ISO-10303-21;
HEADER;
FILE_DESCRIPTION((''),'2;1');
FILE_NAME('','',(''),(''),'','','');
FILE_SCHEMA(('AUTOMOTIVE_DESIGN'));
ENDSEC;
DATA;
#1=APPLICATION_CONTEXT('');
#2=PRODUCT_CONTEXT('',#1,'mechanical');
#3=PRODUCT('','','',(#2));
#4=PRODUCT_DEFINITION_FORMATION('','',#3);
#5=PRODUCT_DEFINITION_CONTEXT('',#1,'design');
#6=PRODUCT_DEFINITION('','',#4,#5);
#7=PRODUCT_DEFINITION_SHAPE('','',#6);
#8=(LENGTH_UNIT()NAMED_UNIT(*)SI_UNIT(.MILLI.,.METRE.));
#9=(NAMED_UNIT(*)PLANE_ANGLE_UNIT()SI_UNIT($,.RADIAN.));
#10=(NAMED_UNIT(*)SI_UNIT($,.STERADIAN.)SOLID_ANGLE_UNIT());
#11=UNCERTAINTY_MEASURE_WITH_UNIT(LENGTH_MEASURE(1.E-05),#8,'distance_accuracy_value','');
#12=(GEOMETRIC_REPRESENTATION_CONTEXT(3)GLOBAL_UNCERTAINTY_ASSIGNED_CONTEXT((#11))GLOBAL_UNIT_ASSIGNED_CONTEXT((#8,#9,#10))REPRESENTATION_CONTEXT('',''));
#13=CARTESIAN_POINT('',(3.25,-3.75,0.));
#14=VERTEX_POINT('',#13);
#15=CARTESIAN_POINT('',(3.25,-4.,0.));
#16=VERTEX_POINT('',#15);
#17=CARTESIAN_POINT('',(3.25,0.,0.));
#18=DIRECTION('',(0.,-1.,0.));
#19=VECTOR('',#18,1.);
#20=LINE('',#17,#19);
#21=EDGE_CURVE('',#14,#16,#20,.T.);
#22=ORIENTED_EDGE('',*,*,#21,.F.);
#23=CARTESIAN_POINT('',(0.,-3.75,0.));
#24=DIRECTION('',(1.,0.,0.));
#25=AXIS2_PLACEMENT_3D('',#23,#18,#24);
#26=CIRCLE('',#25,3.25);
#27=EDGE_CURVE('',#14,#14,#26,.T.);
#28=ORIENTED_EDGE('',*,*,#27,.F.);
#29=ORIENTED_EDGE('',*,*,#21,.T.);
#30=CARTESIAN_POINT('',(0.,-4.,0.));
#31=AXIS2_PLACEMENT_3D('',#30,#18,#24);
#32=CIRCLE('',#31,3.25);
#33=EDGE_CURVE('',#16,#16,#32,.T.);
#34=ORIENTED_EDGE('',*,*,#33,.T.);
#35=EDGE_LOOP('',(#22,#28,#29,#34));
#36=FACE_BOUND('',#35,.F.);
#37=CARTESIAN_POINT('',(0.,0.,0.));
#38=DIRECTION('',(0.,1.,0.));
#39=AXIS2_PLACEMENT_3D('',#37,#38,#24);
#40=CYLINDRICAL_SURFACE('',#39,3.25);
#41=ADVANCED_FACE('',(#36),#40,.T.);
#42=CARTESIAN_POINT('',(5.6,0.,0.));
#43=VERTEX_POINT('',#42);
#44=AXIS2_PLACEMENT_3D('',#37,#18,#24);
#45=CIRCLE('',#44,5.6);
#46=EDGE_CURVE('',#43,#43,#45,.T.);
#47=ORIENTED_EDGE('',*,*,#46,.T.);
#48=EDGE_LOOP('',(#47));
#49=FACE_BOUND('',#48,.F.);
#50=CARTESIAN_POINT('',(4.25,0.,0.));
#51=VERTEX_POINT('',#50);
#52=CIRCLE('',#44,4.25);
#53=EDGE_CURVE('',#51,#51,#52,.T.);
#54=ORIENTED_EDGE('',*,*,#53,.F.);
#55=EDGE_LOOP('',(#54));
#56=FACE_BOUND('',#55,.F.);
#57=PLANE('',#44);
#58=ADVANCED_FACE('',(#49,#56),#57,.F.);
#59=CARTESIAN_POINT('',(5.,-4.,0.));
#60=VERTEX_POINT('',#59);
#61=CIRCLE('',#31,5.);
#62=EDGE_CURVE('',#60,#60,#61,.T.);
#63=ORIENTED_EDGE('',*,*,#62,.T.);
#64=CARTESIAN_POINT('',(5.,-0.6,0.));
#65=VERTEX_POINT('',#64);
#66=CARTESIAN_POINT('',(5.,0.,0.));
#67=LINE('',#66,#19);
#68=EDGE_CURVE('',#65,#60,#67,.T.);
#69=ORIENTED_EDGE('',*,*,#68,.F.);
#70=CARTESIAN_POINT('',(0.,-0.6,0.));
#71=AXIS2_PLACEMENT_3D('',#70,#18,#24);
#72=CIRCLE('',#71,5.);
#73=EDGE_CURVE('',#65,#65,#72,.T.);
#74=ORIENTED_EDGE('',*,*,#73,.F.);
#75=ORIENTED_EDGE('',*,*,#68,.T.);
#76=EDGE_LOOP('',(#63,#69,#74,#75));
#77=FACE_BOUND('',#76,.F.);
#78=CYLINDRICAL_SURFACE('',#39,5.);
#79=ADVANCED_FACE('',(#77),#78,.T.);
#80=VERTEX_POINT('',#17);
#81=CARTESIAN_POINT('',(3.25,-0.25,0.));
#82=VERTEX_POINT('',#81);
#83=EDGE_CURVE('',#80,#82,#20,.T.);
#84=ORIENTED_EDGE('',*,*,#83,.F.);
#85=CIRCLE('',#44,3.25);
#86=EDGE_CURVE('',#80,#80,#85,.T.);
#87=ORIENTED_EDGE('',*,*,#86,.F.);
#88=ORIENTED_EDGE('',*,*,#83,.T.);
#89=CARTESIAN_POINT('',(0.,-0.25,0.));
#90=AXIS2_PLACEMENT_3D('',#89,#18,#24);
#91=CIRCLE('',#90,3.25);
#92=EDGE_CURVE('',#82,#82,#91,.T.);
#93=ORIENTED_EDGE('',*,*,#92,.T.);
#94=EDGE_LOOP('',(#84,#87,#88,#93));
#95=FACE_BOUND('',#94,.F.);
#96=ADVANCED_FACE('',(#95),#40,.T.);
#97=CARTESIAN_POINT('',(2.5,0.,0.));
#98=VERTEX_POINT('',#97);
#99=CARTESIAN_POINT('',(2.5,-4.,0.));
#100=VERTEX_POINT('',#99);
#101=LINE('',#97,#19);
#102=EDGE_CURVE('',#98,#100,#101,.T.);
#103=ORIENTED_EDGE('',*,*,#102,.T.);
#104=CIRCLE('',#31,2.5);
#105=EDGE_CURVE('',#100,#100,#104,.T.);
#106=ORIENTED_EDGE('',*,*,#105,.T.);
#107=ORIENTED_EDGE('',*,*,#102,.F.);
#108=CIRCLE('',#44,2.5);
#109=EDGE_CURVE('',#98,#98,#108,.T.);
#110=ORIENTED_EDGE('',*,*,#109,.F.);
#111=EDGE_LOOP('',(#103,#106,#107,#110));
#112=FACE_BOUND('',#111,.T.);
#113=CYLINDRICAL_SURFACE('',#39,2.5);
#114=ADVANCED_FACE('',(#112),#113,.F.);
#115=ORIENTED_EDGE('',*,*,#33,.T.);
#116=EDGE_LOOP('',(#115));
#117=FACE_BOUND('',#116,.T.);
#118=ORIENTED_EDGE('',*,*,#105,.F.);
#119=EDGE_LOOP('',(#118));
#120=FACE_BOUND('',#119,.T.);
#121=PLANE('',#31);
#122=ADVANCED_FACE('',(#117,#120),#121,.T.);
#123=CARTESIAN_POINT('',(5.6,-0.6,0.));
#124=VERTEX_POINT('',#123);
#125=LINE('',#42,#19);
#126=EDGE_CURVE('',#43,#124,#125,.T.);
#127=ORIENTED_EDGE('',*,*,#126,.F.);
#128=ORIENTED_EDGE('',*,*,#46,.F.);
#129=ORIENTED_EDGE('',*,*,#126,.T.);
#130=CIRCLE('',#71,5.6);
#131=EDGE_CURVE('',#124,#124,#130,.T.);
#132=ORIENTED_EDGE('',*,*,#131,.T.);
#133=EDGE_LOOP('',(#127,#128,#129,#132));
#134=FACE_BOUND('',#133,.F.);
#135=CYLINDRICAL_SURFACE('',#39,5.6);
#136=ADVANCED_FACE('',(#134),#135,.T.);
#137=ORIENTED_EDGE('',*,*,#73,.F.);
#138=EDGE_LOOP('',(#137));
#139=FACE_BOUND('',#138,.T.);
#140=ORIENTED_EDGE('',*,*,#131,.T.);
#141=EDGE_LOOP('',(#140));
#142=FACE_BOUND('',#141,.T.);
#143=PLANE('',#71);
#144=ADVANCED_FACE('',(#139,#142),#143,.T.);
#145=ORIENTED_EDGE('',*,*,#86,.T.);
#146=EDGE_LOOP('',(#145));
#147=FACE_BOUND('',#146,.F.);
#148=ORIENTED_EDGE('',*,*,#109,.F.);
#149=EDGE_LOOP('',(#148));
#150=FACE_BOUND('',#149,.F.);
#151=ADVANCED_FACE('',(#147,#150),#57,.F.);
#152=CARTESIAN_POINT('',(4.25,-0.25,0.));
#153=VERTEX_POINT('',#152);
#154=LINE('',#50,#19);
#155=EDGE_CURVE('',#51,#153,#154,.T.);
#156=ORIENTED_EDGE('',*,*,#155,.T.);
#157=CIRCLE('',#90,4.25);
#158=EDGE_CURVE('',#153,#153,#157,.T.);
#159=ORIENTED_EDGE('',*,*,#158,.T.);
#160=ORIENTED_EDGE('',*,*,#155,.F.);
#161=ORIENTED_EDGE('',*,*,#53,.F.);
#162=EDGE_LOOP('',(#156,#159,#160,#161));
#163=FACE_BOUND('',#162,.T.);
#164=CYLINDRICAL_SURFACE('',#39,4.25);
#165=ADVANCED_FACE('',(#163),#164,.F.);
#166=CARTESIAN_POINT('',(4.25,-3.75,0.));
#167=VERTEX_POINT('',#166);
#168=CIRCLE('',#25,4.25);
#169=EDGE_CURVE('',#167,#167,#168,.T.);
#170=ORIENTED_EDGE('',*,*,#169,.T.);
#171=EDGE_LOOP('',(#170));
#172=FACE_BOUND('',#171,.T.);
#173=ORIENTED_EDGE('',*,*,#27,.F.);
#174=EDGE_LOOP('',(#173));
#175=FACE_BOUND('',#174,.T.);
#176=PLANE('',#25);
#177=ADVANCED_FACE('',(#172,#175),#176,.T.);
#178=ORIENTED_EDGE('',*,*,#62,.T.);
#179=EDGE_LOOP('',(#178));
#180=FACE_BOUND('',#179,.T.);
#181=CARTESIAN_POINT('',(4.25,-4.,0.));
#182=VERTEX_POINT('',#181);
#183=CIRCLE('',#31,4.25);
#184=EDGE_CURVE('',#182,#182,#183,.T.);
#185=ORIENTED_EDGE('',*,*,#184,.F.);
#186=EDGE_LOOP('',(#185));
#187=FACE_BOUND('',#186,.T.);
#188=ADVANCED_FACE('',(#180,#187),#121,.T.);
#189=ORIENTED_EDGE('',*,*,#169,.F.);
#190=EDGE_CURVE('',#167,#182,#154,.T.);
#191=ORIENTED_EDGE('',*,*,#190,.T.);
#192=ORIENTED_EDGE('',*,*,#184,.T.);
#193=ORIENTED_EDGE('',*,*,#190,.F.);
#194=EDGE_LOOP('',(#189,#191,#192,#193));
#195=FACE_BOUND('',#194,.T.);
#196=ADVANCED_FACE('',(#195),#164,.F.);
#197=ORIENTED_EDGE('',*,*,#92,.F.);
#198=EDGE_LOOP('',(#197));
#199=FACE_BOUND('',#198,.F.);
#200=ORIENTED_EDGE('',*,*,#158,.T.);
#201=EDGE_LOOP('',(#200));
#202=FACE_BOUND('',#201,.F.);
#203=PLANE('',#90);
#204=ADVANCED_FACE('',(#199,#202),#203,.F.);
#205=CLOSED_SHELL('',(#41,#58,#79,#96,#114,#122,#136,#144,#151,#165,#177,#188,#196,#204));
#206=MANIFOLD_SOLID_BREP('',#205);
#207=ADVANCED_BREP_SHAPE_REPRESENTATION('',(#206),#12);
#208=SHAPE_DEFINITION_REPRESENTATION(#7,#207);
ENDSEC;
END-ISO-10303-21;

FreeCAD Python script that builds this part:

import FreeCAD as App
import Part
import Sketcher
from FreeCAD import Vector
Q = App.Units.Quantity

doc = App.newDocument("Part")
body = doc.addObject("PartDesign::Body", "Body")

sketch1 = body.newObject("Sketcher::SketchObject", "Sketch")
sketch1.AttachmentSupport = (doc.getObject("XZ_Plane"), [""])
sketch1.MapMode = "FlatFace"
sketch1.addGeometry([
    Part.Circle(Vector(0, 0, 0), Vector(0, 0, 1), 6),
    Part.Circle(Vector(0, 0, 0), Vector(0, 0, 1), 5),
], False)
sketch1.addConstraint([
    Sketcher.Constraint("Coincident", 0, 3, -1, 1),
    Sketcher.Constraint("Coincident", 1, 3, -1, 1),
    Sketcher.Constraint("Diameter", 1, Q("10 mm")),
    Sketcher.Constraint("Diameter", 0, Q("11.2 mm")),
])
pad1 = body.newObject("PartDesign::Pad", "Pad")
pad1.Profile = sketch1
pad1.Length = 0.6

sketch2 = body.newObject("Sketcher::SketchObject", "Sketch001")
sketch2.AttachmentSupport = (doc.getObject("XZ_Plane"), [""])
sketch2.MapMode = "FlatFace"
sketch2.addGeometry([
    Part.Circle(Vector(0, 0, 0), Vector(0, 0, 1), 5),
    Part.Circle(Vector(0, 0, 0), Vector(0, 0, 1), 4.2),
], False)
sketch2.addConstraint([
    Sketcher.Constraint("Coincident", 0, 3, -1, 1),
    Sketcher.Constraint("Coincident", 1, 3, -1, 1),
    Sketcher.Constraint("Diameter", 0, Q("10 mm")),
    Sketcher.Constraint("Diameter", 1, Q("8.5 mm")),
])
pad2 = body.newObject("PartDesign::Pad", "Pad001")
pad2.Profile = sketch2
pad2.Length = 4
body2 = doc.addObject("PartDesign::Body", "Body001")

sketch3 = body2.newObject("Sketcher::SketchObject", "Sketch002")
sketch3.AttachmentSupport = (doc.getObject("XZ_Plane001"), [""])
sketch3.MapMode = "FlatFace"
sketch3.addGeometry([
    Part.Circle(Vector(0, 0, 0), Vector(0, 0, 1), 3.2),
    Part.Circle(Vector(0, 0, 0), Vector(0, 0, 1), 2.5),
], False)
sketch3.addConstraint([
    Sketcher.Constraint("Coincident", 0, 3, -1, 1),
    Sketcher.Constraint("Coincident", 1, 3, -1, 1),
    Sketcher.Constraint("Diameter", 1, Q("5 mm")),
    Sketcher.Constraint("Diameter", 0, Q("6.5 mm")),
])
pad3 = body2.newObject("PartDesign::Pad", "Pad002")
pad3.Profile = sketch3
pad3.Length = 4
body.AllowCompound = True
doc.recompute()

boolean = body.newObject("PartDesign::Boolean", "Boolean")
boolean.Type = "Fuse"
boolean.addObjects([body2])

sketch4 = body.newObject("Sketcher::SketchObject", "Sketch003")
sketch4.AttachmentSupport = (doc.getObject("XZ_Plane"), [""])
sketch4.MapMode = "FlatFace"
sketch4.AttachmentOffset = App.Placement(Vector(0, 0, 2), App.Rotation())
sketch4.addGeometry([
    Part.Circle(Vector(0, 0, 0), Vector(0, 0, 1), 4.2),
    Part.Circle(Vector(0, 0, 0), Vector(0, 0, 1), 3.2),
], False)
sketch4.addConstraint([
    Sketcher.Constraint("Coincident", 0, 3, -1, 1),
    Sketcher.Constraint("Coincident", 1, 3, -1, 1),
    Sketcher.Constraint("Diameter", 0, Q("8.5 mm")),
    Sketcher.Constraint("Diameter", 1, Q("6.5 mm")),
])
pad4 = body.newObject("PartDesign::Pad", "Pad003")
pad4.Profile = sketch4
pad4.Length = 3.5
pad4.Midplane = True

doc.recompute()
